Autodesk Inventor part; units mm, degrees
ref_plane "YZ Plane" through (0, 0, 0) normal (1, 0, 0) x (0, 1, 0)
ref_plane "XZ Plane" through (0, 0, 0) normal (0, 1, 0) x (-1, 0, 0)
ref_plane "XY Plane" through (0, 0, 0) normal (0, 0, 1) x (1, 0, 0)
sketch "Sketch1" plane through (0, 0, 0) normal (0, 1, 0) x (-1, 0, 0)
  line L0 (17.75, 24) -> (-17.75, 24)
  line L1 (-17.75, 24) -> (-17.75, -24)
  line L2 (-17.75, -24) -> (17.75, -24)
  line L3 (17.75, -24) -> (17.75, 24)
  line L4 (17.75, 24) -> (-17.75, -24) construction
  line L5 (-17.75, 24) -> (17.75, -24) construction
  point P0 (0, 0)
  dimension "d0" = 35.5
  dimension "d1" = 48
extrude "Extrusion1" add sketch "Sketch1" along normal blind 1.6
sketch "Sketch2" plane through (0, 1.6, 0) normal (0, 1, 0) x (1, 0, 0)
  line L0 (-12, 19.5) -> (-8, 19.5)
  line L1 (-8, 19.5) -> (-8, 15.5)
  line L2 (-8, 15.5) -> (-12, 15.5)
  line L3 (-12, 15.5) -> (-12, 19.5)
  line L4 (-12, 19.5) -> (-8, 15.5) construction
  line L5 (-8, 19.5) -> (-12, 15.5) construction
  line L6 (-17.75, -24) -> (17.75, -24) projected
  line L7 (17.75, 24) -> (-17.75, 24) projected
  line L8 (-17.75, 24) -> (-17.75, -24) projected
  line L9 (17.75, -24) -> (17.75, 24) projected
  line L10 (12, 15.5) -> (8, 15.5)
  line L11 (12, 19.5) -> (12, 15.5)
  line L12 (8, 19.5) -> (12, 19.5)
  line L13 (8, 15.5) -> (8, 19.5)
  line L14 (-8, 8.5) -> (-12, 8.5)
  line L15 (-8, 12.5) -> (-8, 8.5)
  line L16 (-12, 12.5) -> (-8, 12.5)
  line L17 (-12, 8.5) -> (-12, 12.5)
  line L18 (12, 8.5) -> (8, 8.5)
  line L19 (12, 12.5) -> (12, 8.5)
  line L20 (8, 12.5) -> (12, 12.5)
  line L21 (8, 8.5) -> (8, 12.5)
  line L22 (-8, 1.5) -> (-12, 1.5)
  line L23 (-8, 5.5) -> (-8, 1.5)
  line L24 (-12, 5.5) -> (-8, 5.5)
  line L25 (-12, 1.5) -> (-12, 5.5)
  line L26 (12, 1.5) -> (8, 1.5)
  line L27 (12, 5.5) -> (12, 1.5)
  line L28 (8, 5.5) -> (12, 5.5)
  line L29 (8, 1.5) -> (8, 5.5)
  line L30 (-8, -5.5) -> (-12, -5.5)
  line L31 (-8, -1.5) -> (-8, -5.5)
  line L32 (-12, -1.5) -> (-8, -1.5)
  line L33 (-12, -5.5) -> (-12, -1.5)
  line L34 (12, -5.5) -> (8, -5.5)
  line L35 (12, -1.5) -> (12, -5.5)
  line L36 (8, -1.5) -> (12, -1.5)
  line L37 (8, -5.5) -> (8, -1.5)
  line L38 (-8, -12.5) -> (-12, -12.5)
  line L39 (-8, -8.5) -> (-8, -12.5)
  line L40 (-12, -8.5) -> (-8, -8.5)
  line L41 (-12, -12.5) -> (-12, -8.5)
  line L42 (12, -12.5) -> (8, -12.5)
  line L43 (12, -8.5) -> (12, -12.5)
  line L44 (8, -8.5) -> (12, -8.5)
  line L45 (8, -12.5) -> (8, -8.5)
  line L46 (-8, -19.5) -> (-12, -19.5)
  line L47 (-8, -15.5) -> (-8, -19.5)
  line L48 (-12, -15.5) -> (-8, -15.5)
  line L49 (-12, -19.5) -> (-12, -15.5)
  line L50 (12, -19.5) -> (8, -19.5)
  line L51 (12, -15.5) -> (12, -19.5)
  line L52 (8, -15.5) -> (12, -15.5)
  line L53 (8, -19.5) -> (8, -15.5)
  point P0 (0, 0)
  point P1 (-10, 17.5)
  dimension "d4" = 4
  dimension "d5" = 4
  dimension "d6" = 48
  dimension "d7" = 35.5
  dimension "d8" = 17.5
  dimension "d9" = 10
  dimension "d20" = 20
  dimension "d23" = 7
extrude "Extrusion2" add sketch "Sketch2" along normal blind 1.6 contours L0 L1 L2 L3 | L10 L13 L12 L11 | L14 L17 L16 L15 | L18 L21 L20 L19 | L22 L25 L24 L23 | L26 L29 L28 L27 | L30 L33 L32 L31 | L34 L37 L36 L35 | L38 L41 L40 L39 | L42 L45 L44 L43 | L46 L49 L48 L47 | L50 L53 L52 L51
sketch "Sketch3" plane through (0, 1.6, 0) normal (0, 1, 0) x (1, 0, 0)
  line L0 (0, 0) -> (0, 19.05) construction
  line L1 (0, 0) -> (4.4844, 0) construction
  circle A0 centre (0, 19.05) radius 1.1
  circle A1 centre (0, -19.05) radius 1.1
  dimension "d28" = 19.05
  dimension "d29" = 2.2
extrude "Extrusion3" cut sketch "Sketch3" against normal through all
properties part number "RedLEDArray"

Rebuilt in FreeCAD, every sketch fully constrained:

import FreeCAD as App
import Part
import Sketcher

V = App.Vector

doc = App.newDocument("Part")
body = doc.addObject("PartDesign::Body", "Body")

sketch1 = doc.addObject("Sketcher::SketchObject", "Sketch")
body.addObject(sketch1)
sketch1.AttachmentSupport = (doc.XZ_Plane, [""])
sketch1.MapMode = "FlatFace"
sketch1.addGeometry(Part.LineSegment(V(-18, -24, 0), V(-18, 24, 0)), False)
sketch1.addGeometry(Part.LineSegment(V(-18, 24, 0), V(18, 24, 0)), False)
sketch1.addGeometry(Part.LineSegment(V(18, 24, 0), V(18, -24, 0)), False)
sketch1.addGeometry(Part.LineSegment(V(18, -24, 0), V(-18, -24, 0)), False)
sketch1.addConstraint(Sketcher.Constraint("Coincident", 0, 2, 1, 1))
sketch1.addConstraint(Sketcher.Constraint("Coincident", 1, 2, 2, 1))
sketch1.addConstraint(Sketcher.Constraint("Coincident", 2, 2, 3, 1))
sketch1.addConstraint(Sketcher.Constraint("Coincident", 3, 2, 0, 1))
sketch1.addConstraint(Sketcher.Constraint("Vertical", 0))
sketch1.addConstraint(Sketcher.Constraint("Horizontal", 1))
sketch1.addConstraint(Sketcher.Constraint("Vertical", 2))
sketch1.addConstraint(Sketcher.Constraint("Horizontal", 3))
sketch1.addConstraint(Sketcher.Constraint("Symmetric", 0, 2, 2, 2, -1, 1))
sketch1.addConstraint(Sketcher.Constraint("DistanceY", 0, 1, 0, 2, 48.0))
sketch1.addConstraint(Sketcher.Constraint("DistanceX", 1, 1, 1, 2, 35.5))
pad1 = doc.addObject("PartDesign::Pad", "Pad")
body.addObject(pad1)
pad1.Profile = sketch1
pad1.Length = 1.6
pad1.Reversed = True

sketch2 = doc.addObject("Sketcher::SketchObject", "Sketch001")
body.addObject(sketch2)
sketch2.AttachmentSupport = (doc.XZ_Plane, [""])
sketch2.MapMode = "FlatFace"
sketch2.AttachmentOffset = App.Placement(V(0, 0, -1.6), App.Rotation())
sketch2.addGeometry(Part.LineSegment(V(-8, -19.5, 0), V(-12, -19.5, 0)), False)
sketch2.addGeometry(Part.LineSegment(V(-12, -19.5, 0), V(-12, -15.5, 0)), False)
sketch2.addGeometry(Part.LineSegment(V(-12, -15.5, 0), V(-8, -15.5, 0)), False)
sketch2.addGeometry(Part.LineSegment(V(-8, -15.5, 0), V(-8, -19.5, 0)), False)
sketch2.addGeometry(Part.LineSegment(V(8, -15.5, 0), V(12, -15.5, 0)), False)
sketch2.addGeometry(Part.LineSegment(V(12, -15.5, 0), V(12, -19.5, 0)), False)
sketch2.addGeometry(Part.LineSegment(V(12, -19.5, 0), V(8, -19.5, 0)), False)
sketch2.addGeometry(Part.LineSegment(V(8, -19.5, 0), V(8, -15.5, 0)), False)
sketch2.addGeometry(Part.LineSegment(V(-12, -8.5, 0), V(-8, -8.5, 0)), False)
sketch2.addGeometry(Part.LineSegment(V(-8, -8.5, 0), V(-8, -12.5, 0)), False)
sketch2.addGeometry(Part.LineSegment(V(-8, -12.5, 0), V(-12, -12.5, 0)), False)
sketch2.addGeometry(Part.LineSegment(V(-12, -12.5, 0), V(-12, -8.5, 0)), False)
sketch2.addGeometry(Part.LineSegment(V(8, -8.5, 0), V(12, -8.5, 0)), False)
sketch2.addGeometry(Part.LineSegment(V(12, -8.5, 0), V(12, -12.5, 0)), False)
sketch2.addGeometry(Part.LineSegment(V(12, -12.5, 0), V(8, -12.5, 0)), False)
sketch2.addGeometry(Part.LineSegment(V(8, -12.5, 0), V(8, -8.5, 0)), False)
sketch2.addGeometry(Part.LineSegment(V(-12, -1.5, 0), V(-8, -1.5, 0)), False)
sketch2.addGeometry(Part.LineSegment(V(-8, -1.5, 0), V(-8, -5.5, 0)), False)
sketch2.addGeometry(Part.LineSegment(V(-8, -5.5, 0), V(-12, -5.5, 0)), False)
sketch2.addGeometry(Part.LineSegment(V(-12, -5.5, 0), V(-12, -1.5, 0)), False)
sketch2.addGeometry(Part.LineSegment(V(8, -1.5, 0), V(12, -1.5, 0)), False)
sketch2.addGeometry(Part.LineSegment(V(12, -1.5, 0), V(12, -5.5, 0)), False)
sketch2.addGeometry(Part.LineSegment(V(12, -5.5, 0), V(8, -5.5, 0)), False)
sketch2.addGeometry(Part.LineSegment(V(8, -5.5, 0), V(8, -1.5, 0)), False)
sketch2.addGeometry(Part.LineSegment(V(-12, 5.5, 0), V(-8, 5.5, 0)), False)
sketch2.addGeometry(Part.LineSegment(V(-8, 5.5, 0), V(-8, 1.5, 0)), False)
sketch2.addGeometry(Part.LineSegment(V(-8, 1.5, 0), V(-12, 1.5, 0)), False)
sketch2.addGeometry(Part.LineSegment(V(-12, 1.5, 0), V(-12, 5.5, 0)), False)
sketch2.addGeometry(Part.LineSegment(V(8, 5.5, 0), V(12, 5.5, 0)), False)
sketch2.addGeometry(Part.LineSegment(V(12, 5.5, 0), V(12, 1.5, 0)), False)
sketch2.addGeometry(Part.LineSegment(V(12, 1.5, 0), V(8, 1.5, 0)), False)
sketch2.addGeometry(Part.LineSegment(V(8, 1.5, 0), V(8, 5.5, 0)), False)
sketch2.addGeometry(Part.LineSegment(V(-12, 12.5, 0), V(-8, 12.5, 0)), False)
sketch2.addGeometry(Part.LineSegment(V(-8, 12.5, 0), V(-8, 8.5, 0)), False)
sketch2.addGeometry(Part.LineSegment(V(-8, 8.5, 0), V(-12, 8.5, 0)), False)
sketch2.addGeometry(Part.LineSegment(V(-12, 8.5, 0), V(-12, 12.5, 0)), False)
sketch2.addGeometry(Part.LineSegment(V(8, 12.5, 0), V(12, 12.5, 0)), False)
sketch2.addGeometry(Part.LineSegment(V(12, 12.5, 0), V(12, 8.5, 0)), False)
sketch2.addGeometry(Part.LineSegment(V(12, 8.5, 0), V(8, 8.5, 0)), False)
sketch2.addGeometry(Part.LineSegment(V(8, 8.5, 0), V(8, 12.5, 0)), False)
sketch2.addGeometry(Part.LineSegment(V(-12, 19.5, 0), V(-8, 19.5, 0)), False)
sketch2.addGeometry(Part.LineSegment(V(-8, 19.5, 0), V(-8, 15.5, 0)), False)
sketch2.addGeometry(Part.LineSegment(V(-8, 15.5, 0), V(-12, 15.5, 0)), False)
sketch2.addGeometry(Part.LineSegment(V(-12, 15.5, 0), V(-12, 19.5, 0)), False)
sketch2.addGeometry(Part.LineSegment(V(8, 19.5, 0), V(12, 19.5, 0)), False)
sketch2.addGeometry(Part.LineSegment(V(12, 19.5, 0), V(12, 15.5, 0)), False)
sketch2.addGeometry(Part.LineSegment(V(12, 15.5, 0), V(8, 15.5, 0)), False)
sketch2.addGeometry(Part.LineSegment(V(8, 15.5, 0), V(8, 19.5, 0)), False)
sketch2.addConstraint(Sketcher.Constraint("Coincident", 0, 2, 1, 1))
sketch2.addConstraint(Sketcher.Constraint("Coincident", 1, 2, 2, 1))
sketch2.addConstraint(Sketcher.Constraint("Coincident", 2, 2, 3, 1))
sketch2.addConstraint(Sketcher.Constraint("Coincident", 3, 2, 0, 1))
sketch2.addConstraint(Sketcher.Constraint("Coincident", 4, 2, 5, 1))
sketch2.addConstraint(Sketcher.Constraint("Coincident", 5, 2, 6, 1))
sketch2.addConstraint(Sketcher.Constraint("Coincident", 6, 2, 7, 1))
sketch2.addConstraint(Sketcher.Constraint("Coincident", 7, 2, 4, 1))
sketch2.addConstraint(Sketcher.Constraint("Coincident", 8, 2, 9, 1))
sketch2.addConstraint(Sketcher.Constraint("Coincident", 9, 2, 10, 1))
sketch2.addConstraint(Sketcher.Constraint("Coincident", 10, 2, 11, 1))
sketch2.addConstraint(Sketcher.Constraint("Coincident", 11, 2, 8, 1))
sketch2.addConstraint(Sketcher.Constraint("Coincident", 12, 2, 13, 1))
sketch2.addConstraint(Sketcher.Constraint("Coincident", 13, 2, 14, 1))
sketch2.addConstraint(Sketcher.Constraint("Coincident", 14, 2, 15, 1))
sketch2.addConstraint(Sketcher.Constraint("Coincident", 15, 2, 12, 1))
sketch2.addConstraint(Sketcher.Constraint("Coincident", 16, 2, 17, 1))
sketch2.addConstraint(Sketcher.Constraint("Coincident", 17, 2, 18, 1))
sketch2.addConstraint(Sketcher.Constraint("Coincident", 18, 2, 19, 1))
sketch2.addConstraint(Sketcher.Constraint("Coincident", 19, 2, 16, 1))
sketch2.addConstraint(Sketcher.Constraint("Coincident", 20, 2, 21, 1))
sketch2.addConstraint(Sketcher.Constraint("Coincident", 21, 2, 22, 1))
sketch2.addConstraint(Sketcher.Constraint("Coincident", 22, 2, 23, 1))
sketch2.addConstraint(Sketcher.Constraint("Coincident", 23, 2, 20, 1))
sketch2.addConstraint(Sketcher.Constraint("Coincident", 24, 2, 25, 1))
sketch2.addConstraint(Sketcher.Constraint("Coincident", 25, 2, 26, 1))
sketch2.addConstraint(Sketcher.Constraint("Coincident", 26, 2, 27, 1))
sketch2.addConstraint(Sketcher.Constraint("Coincident", 27, 2, 24, 1))
sketch2.addConstraint(Sketcher.Constraint("Coincident", 28, 2, 29, 1))
sketch2.addConstraint(Sketcher.Constraint("Coincident", 29, 2, 30, 1))
sketch2.addConstraint(Sketcher.Constraint("Coincident", 30, 2, 31, 1))
sketch2.addConstraint(Sketcher.Constraint("Coincident", 31, 2, 28, 1))
sketch2.addConstraint(Sketcher.Constraint("Coincident", 32, 2, 33, 1))
sketch2.addConstraint(Sketcher.Constraint("Coincident", 33, 2, 34, 1))
sketch2.addConstraint(Sketcher.Constraint("Coincident", 34, 2, 35, 1))
sketch2.addConstraint(Sketcher.Constraint("Coincident", 35, 2, 32, 1))
sketch2.addConstraint(Sketcher.Constraint("Coincident", 36, 2, 37, 1))
sketch2.addConstraint(Sketcher.Constraint("Coincident", 37, 2, 38, 1))
sketch2.addConstraint(Sketcher.Constraint("Coincident", 38, 2, 39, 1))
sketch2.addConstraint(Sketcher.Constraint("Coincident", 39, 2, 36, 1))
sketch2.addConstraint(Sketcher.Constraint("Coincident", 40, 2, 41, 1))
sketch2.addConstraint(Sketcher.Constraint("Coincident", 41, 2, 42, 1))
sketch2.addConstraint(Sketcher.Constraint("Coincident", 42, 2, 43, 1))
sketch2.addConstraint(Sketcher.Constraint("Coincident", 43, 2, 40, 1))
sketch2.addConstraint(Sketcher.Constraint("Coincident", 44, 2, 45, 1))
sketch2.addConstraint(Sketcher.Constraint("Coincident", 45, 2, 46, 1))
sketch2.addConstraint(Sketcher.Constraint("Coincident", 46, 2, 47, 1))
sketch2.addConstraint(Sketcher.Constraint("Coincident", 47, 2, 44, 1))
sketch2.addConstraint(Sketcher.Constraint("Horizontal", 0))
sketch2.addConstraint(Sketcher.Constraint("Vertical", 1))
sketch2.addConstraint(Sketcher.Constraint("Horizontal", 2))
sketch2.addConstraint(Sketcher.Constraint("Vertical", 3))
sketch2.addConstraint(Sketcher.Constraint("Horizontal", 4))
sketch2.addConstraint(Sketcher.Constraint("Vertical", 5))
sketch2.addConstraint(Sketcher.Constraint("Horizontal", 6))
sketch2.addConstraint(Sketcher.Constraint("Vertical", 7))
sketch2.addConstraint(Sketcher.Constraint("Horizontal", 8))
sketch2.addConstraint(Sketcher.Constraint("Vertical", 9))
sketch2.addConstraint(Sketcher.Constraint("Horizontal", 10))
sketch2.addConstraint(Sketcher.Constraint("Vertical", 11))
sketch2.addConstraint(Sketcher.Constraint("Horizontal", 12))
sketch2.addConstraint(Sketcher.Constraint("Vertical", 13))
sketch2.addConstraint(Sketcher.Constraint("Horizontal", 14))
sketch2.addConstraint(Sketcher.Constraint("Vertical", 15))
sketch2.addConstraint(Sketcher.Constraint("Horizontal", 16))
sketch2.addConstraint(Sketcher.Constraint("Vertical", 17))
sketch2.addConstraint(Sketcher.Constraint("Horizontal", 18))
sketch2.addConstraint(Sketcher.Constraint("Vertical", 19))
sketch2.addConstraint(Sketcher.Constraint("Horizontal", 20))
sketch2.addConstraint(Sketcher.Constraint("Vertical", 21))
sketch2.addConstraint(Sketcher.Constraint("Horizontal", 22))
sketch2.addConstraint(Sketcher.Constraint("Vertical", 23))
sketch2.addConstraint(Sketcher.Constraint("Horizontal", 24))
sketch2.addConstraint(Sketcher.Constraint("Vertical", 25))
sketch2.addConstraint(Sketcher.Constraint("Horizontal", 26))
sketch2.addConstraint(Sketcher.Constraint("Vertical", 27))
sketch2.addConstraint(Sketcher.Constraint("Horizontal", 28))
sketch2.addConstraint(Sketcher.Constraint("Vertical", 29))
sketch2.addConstraint(Sketcher.Constraint("Horizontal", 30))
sketch2.addConstraint(Sketcher.Constraint("Vertical", 31))
sketch2.addConstraint(Sketcher.Constraint("Horizontal", 32))
sketch2.addConstraint(Sketcher.Constraint("Vertical", 33))
sketch2.addConstraint(Sketcher.Constraint("Horizontal", 34))
sketch2.addConstraint(Sketcher.Constraint("Vertical", 35))
sketch2.addConstraint(Sketcher.Constraint("Horizontal", 36))
sketch2.addConstraint(Sketcher.Constraint("Vertical", 37))
sketch2.addConstraint(Sketcher.Constraint("Horizontal", 38))
sketch2.addConstraint(Sketcher.Constraint("Vertical", 39))
sketch2.addConstraint(Sketcher.Constraint("Horizontal", 40))
sketch2.addConstraint(Sketcher.Constraint("Vertical", 41))
sketch2.addConstraint(Sketcher.Constraint("Horizontal", 42))
sketch2.addConstraint(Sketcher.Constraint("Vertical", 43))
sketch2.addConstraint(Sketcher.Constraint("Horizontal", 44))
sketch2.addConstraint(Sketcher.Constraint("Vertical", 45))
sketch2.addConstraint(Sketcher.Constraint("Horizontal", 46))
sketch2.addConstraint(Sketcher.Constraint("Vertical", 47))
sketch2.addConstraint(Sketcher.Constraint("Symmetric", 22, 2, 24, 2, -1, 1))
sketch2.addConstraint(Sketcher.Constraint("Symmetric", 20, 2, 26, 2, -1, 1))
sketch2.addConstraint(Sketcher.Constraint("Symmetric", 18, 2, 28, 2, -1, 1))
sketch2.addConstraint(Sketcher.Constraint("Symmetric", 16, 2, 30, 2, -1, 1))
sketch2.addConstraint(Sketcher.Constraint("Symmetric", 14, 2, 32, 2, -1, 1))
sketch2.addConstraint(Sketcher.Constraint("Symmetric", 12, 2, 34, 2, -1, 1))
sketch2.addConstraint(Sketcher.Constraint("Symmetric", 10, 2, 36, 2, -1, 1))
sketch2.addConstraint(Sketcher.Constraint("Symmetric", 8, 2, 38, 2, -1, 1))
sketch2.addConstraint(Sketcher.Constraint("Symmetric", 6, 2, 40, 2, -1, 1))
sketch2.addConstraint(Sketcher.Constraint("Symmetric", 4, 2, 42, 2, -1, 1))
sketch2.addConstraint(Sketcher.Constraint("Symmetric", 0, 2, 44, 2, -1, 1))
sketch2.addConstraint(Sketcher.Constraint("Symmetric", 2, 2, 46, 2, -1, 1))
sketch2.addConstraint(Sketcher.Constraint("Symmetric", 1, 2, 4, 2, -2))
sketch2.addConstraint(Sketcher.Constraint("Symmetric", 3, 2, 6, 2, -2))
sketch2.addConstraint(Sketcher.Constraint("Symmetric", 11, 2, 12, 2, -2))
sketch2.addConstraint(Sketcher.Constraint("Symmetric", 9, 2, 14, 2, -2))
sketch2.addConstraint(Sketcher.Constraint("Symmetric", 19, 2, 20, 2, -2))
sketch2.addConstraint(Sketcher.Constraint("Symmetric", 17, 2, 22, 2, -2))
sketch2.addConstraint(Sketcher.Constraint("Vertical", 3, 2, 8, 2))
sketch2.addConstraint(Sketcher.Constraint("Vertical", 1, 2, 10, 2))
sketch2.addConstraint(Sketcher.Constraint("Vertical", 9, 2, 16, 2))
sketch2.addConstraint(Sketcher.Constraint("Vertical", 11, 2, 18, 2))
sketch2.addConstraint(Sketcher.Constraint("Equal", 46, 1))
sketch2.addConstraint(Sketcher.Constraint("Equal", 7, 9))
sketch2.addConstraint(Sketcher.Constraint("Equal", 15, 17))
sketch2.addConstraint(Sketcher.Constraint("DistanceX", 0, 2, 0, 1, 4.0))
sketch2.addConstraint(Sketcher.Constraint("DistanceX", 2, 2, 4, 2, 20.0))
sketch2.addConstraint(Sketcher.Constraint("DistanceY", 2, 2, 8, 2, 7.0))
sketch2.addConstraint(Sketcher.Constraint("DistanceY", 8, 2, 16, 2, 7.0))
sketch2.addConstraint(Sketcher.Constraint("DistanceY", 16, 2, 24, 2, 7.0))
pad2 = doc.addObject("PartDesign::Pad", "Pad001")
body.addObject(pad2)
pad2.Profile = sketch2
pad2.Length = 1.6
pad2.Reversed = True

sketch3 = doc.addObject("Sketcher::SketchObject", "Sketch002")
body.addObject(sketch3)
sketch3.AttachmentSupport = (doc.XZ_Plane, [""])
sketch3.MapMode = "FlatFace"
sketch3.AttachmentOffset = App.Placement(V(0, 0, -1.6), App.Rotation())
sketch3.addGeometry(Part.Circle(V(0, -19.1, 0), V(0, 0, 1), 1.1), False)
sketch3.addGeometry(Part.Circle(V(0, 19.1, 0), V(0, 0, 1), 1.1), False)
sketch3.addConstraint(Sketcher.Constraint("Equal", 0, 1))
sketch3.addConstraint(Sketcher.Constraint("Symmetric", 0, 3, 1, 3, -1, 1))
sketch3.addConstraint(Sketcher.Constraint("PointOnObject", 0, 3, -2))
sketch3.addConstraint(Sketcher.Constraint("Diameter", 0, 2.2))
sketch3.addConstraint(Sketcher.Constraint("DistanceY", 0, 3, -1, 1, 19.05))
pocket1 = doc.addObject("PartDesign::Pocket", "Pocket")
body.addObject(pocket1)
pocket1.Profile = sketch3
pocket1.Type = "ThroughAll"
pocket1.Reversed = True

doc.recompute()
